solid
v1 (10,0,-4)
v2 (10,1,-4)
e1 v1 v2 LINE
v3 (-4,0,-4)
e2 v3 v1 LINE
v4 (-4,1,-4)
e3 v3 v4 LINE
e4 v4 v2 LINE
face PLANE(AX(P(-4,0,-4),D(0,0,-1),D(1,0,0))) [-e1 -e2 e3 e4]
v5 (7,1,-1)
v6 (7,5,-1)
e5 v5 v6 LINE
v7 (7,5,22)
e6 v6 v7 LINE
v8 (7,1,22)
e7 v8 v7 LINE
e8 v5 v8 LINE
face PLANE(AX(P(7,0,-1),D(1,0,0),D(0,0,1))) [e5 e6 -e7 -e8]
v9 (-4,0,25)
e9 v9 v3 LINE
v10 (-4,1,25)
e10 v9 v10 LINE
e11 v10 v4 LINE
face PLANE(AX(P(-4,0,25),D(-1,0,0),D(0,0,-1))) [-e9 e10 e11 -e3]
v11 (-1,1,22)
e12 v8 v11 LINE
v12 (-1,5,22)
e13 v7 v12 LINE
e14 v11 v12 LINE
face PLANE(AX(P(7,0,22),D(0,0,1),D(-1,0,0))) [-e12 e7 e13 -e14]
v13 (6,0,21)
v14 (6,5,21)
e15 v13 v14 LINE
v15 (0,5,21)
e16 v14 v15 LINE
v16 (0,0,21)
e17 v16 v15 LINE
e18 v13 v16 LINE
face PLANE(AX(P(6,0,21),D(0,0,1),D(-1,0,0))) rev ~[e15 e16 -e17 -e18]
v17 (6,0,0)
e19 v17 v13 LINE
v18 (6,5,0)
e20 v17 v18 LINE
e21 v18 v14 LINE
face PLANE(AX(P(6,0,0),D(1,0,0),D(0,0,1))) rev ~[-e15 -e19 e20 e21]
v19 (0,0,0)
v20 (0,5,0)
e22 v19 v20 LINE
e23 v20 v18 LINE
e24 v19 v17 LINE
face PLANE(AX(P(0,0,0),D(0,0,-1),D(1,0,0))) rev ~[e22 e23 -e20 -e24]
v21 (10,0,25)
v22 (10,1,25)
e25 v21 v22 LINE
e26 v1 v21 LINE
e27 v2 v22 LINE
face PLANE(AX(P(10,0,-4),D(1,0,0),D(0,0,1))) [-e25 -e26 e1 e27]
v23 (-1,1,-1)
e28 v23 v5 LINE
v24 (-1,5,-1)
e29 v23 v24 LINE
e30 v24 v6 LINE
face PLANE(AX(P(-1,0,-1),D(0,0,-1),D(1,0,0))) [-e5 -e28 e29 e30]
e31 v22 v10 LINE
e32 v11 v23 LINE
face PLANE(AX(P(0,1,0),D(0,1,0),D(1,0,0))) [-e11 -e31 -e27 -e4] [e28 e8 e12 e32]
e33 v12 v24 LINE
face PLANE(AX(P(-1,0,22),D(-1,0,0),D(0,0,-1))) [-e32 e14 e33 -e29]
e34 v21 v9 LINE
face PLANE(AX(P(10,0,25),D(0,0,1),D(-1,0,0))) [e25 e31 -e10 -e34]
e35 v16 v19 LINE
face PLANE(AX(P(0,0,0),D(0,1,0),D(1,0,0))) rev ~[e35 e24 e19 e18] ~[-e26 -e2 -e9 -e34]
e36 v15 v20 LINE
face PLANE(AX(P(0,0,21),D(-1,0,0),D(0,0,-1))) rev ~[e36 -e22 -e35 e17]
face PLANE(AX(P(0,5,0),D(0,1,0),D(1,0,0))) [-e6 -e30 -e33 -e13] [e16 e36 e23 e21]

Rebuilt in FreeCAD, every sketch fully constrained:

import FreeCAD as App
import Part
import Sketcher
from FreeCAD import Vector


def add_polygon(sketch, points):
    """Adds a closed chain of lines whose ends are joined by coincident constraints."""
    first, n = sketch.GeometryCount, len(points)
    for a, b in zip(points, points[1:] + points[:1]):
        sketch.addGeometry(Part.LineSegment(App.Vector(*a, 0), App.Vector(*b, 0)), False)
    for i in range(n):
        sketch.addConstraint(Sketcher.Constraint("Coincident", first + i, 2, first + (i + 1) % n, 1))

doc = App.newDocument("Part")
body = doc.addObject("PartDesign::Body", "Body")

sketch1 = body.newObject("Sketcher::SketchObject", "Sketch")
sketch1.AttachmentSupport = (doc.getObject("XZ_Plane"), [""])
sketch1.MapMode = "FlatFace"
add_polygon(sketch1, [(7, -1), (-1, -1), (-1, 22), (7, 22)])
add_polygon(sketch1, [(0, 21), (0, 0), (6, 0), (6, 21)])
sketch1.addConstraint([
    Sketcher.Constraint("Horizontal", 0),
    Sketcher.Constraint("Vertical", 1),
    Sketcher.Constraint("Horizontal", 2),
    Sketcher.Constraint("Vertical", 3),
    Sketcher.Constraint("Vertical", 4),
    Sketcher.Constraint("Horizontal", 5),
    Sketcher.Constraint("Vertical", 6),
    Sketcher.Constraint("Horizontal", 7),
    Sketcher.Constraint("Coincident", 4, 2, -1, 1),
    Sketcher.Constraint("DistanceX", 5, 1, 5, 2, 6.0),
    Sketcher.Constraint("DistanceY", 4, 2, 4, 1, 21.0),
    Sketcher.Constraint("DistanceX", 0, 2, -1, 1, 1.0),
    Sketcher.Constraint("DistanceY", 0, 2, -1, 1, 1.0),
    Sketcher.Constraint("DistanceX", 5, 2, 3, 2, 1.0),
    Sketcher.Constraint("DistanceY", 6, 2, 2, 2, 1.0),
])
pad1 = body.newObject("PartDesign::Pad", "Pad")
pad1.Profile = sketch1
pad1.Length = 5
pad1.Reversed = True

sketch2 = body.newObject("Sketcher::SketchObject", "Sketch001")
sketch2.AttachmentSupport = (doc.getObject("XZ_Plane"), [""])
sketch2.MapMode = "FlatFace"
add_polygon(sketch2, [(10, -4), (-4, -4), (-4, 25), (10, 25)])
add_polygon(sketch2, [(-1, 22), (-1, -1), (7, -1), (7, 22)])
sketch2.addConstraint([
    Sketcher.Constraint("Horizontal", 0),
    Sketcher.Constraint("Vertical", 1),
    Sketcher.Constraint("Horizontal", 2),
    Sketcher.Constraint("Vertical", 3),
    Sketcher.Constraint("Vertical", 4),
    Sketcher.Constraint("Horizontal", 5),
    Sketcher.Constraint("Vertical", 6),
    Sketcher.Constraint("Horizontal", 7),
    Sketcher.Constraint("DistanceX", 4, 2, -1, 1, 1.0),
    Sketcher.Constraint("DistanceY", 4, 2, -1, 1, 1.0),
    Sketcher.Constraint("DistanceX", 0, 2, 4, 2, 3.0),
    Sketcher.Constraint("DistanceY", 0, 2, 4, 2, 3.0),
    Sketcher.Constraint("DistanceX", 5, 2, 3, 2, 3.0),
    Sketcher.Constraint("DistanceY", 6, 2, 2, 2, 3.0),
    Sketcher.Constraint("DistanceX", 0, 2, 0, 1, 14.0),
    Sketcher.Constraint("DistanceY", 1, 1, 1, 2, 29.0),
])
pad2 = body.newObject("PartDesign::Pad", "Pad001")
pad2.Profile = sketch2
pad2.Length = 1
pad2.Reversed = True

doc.recompute()
